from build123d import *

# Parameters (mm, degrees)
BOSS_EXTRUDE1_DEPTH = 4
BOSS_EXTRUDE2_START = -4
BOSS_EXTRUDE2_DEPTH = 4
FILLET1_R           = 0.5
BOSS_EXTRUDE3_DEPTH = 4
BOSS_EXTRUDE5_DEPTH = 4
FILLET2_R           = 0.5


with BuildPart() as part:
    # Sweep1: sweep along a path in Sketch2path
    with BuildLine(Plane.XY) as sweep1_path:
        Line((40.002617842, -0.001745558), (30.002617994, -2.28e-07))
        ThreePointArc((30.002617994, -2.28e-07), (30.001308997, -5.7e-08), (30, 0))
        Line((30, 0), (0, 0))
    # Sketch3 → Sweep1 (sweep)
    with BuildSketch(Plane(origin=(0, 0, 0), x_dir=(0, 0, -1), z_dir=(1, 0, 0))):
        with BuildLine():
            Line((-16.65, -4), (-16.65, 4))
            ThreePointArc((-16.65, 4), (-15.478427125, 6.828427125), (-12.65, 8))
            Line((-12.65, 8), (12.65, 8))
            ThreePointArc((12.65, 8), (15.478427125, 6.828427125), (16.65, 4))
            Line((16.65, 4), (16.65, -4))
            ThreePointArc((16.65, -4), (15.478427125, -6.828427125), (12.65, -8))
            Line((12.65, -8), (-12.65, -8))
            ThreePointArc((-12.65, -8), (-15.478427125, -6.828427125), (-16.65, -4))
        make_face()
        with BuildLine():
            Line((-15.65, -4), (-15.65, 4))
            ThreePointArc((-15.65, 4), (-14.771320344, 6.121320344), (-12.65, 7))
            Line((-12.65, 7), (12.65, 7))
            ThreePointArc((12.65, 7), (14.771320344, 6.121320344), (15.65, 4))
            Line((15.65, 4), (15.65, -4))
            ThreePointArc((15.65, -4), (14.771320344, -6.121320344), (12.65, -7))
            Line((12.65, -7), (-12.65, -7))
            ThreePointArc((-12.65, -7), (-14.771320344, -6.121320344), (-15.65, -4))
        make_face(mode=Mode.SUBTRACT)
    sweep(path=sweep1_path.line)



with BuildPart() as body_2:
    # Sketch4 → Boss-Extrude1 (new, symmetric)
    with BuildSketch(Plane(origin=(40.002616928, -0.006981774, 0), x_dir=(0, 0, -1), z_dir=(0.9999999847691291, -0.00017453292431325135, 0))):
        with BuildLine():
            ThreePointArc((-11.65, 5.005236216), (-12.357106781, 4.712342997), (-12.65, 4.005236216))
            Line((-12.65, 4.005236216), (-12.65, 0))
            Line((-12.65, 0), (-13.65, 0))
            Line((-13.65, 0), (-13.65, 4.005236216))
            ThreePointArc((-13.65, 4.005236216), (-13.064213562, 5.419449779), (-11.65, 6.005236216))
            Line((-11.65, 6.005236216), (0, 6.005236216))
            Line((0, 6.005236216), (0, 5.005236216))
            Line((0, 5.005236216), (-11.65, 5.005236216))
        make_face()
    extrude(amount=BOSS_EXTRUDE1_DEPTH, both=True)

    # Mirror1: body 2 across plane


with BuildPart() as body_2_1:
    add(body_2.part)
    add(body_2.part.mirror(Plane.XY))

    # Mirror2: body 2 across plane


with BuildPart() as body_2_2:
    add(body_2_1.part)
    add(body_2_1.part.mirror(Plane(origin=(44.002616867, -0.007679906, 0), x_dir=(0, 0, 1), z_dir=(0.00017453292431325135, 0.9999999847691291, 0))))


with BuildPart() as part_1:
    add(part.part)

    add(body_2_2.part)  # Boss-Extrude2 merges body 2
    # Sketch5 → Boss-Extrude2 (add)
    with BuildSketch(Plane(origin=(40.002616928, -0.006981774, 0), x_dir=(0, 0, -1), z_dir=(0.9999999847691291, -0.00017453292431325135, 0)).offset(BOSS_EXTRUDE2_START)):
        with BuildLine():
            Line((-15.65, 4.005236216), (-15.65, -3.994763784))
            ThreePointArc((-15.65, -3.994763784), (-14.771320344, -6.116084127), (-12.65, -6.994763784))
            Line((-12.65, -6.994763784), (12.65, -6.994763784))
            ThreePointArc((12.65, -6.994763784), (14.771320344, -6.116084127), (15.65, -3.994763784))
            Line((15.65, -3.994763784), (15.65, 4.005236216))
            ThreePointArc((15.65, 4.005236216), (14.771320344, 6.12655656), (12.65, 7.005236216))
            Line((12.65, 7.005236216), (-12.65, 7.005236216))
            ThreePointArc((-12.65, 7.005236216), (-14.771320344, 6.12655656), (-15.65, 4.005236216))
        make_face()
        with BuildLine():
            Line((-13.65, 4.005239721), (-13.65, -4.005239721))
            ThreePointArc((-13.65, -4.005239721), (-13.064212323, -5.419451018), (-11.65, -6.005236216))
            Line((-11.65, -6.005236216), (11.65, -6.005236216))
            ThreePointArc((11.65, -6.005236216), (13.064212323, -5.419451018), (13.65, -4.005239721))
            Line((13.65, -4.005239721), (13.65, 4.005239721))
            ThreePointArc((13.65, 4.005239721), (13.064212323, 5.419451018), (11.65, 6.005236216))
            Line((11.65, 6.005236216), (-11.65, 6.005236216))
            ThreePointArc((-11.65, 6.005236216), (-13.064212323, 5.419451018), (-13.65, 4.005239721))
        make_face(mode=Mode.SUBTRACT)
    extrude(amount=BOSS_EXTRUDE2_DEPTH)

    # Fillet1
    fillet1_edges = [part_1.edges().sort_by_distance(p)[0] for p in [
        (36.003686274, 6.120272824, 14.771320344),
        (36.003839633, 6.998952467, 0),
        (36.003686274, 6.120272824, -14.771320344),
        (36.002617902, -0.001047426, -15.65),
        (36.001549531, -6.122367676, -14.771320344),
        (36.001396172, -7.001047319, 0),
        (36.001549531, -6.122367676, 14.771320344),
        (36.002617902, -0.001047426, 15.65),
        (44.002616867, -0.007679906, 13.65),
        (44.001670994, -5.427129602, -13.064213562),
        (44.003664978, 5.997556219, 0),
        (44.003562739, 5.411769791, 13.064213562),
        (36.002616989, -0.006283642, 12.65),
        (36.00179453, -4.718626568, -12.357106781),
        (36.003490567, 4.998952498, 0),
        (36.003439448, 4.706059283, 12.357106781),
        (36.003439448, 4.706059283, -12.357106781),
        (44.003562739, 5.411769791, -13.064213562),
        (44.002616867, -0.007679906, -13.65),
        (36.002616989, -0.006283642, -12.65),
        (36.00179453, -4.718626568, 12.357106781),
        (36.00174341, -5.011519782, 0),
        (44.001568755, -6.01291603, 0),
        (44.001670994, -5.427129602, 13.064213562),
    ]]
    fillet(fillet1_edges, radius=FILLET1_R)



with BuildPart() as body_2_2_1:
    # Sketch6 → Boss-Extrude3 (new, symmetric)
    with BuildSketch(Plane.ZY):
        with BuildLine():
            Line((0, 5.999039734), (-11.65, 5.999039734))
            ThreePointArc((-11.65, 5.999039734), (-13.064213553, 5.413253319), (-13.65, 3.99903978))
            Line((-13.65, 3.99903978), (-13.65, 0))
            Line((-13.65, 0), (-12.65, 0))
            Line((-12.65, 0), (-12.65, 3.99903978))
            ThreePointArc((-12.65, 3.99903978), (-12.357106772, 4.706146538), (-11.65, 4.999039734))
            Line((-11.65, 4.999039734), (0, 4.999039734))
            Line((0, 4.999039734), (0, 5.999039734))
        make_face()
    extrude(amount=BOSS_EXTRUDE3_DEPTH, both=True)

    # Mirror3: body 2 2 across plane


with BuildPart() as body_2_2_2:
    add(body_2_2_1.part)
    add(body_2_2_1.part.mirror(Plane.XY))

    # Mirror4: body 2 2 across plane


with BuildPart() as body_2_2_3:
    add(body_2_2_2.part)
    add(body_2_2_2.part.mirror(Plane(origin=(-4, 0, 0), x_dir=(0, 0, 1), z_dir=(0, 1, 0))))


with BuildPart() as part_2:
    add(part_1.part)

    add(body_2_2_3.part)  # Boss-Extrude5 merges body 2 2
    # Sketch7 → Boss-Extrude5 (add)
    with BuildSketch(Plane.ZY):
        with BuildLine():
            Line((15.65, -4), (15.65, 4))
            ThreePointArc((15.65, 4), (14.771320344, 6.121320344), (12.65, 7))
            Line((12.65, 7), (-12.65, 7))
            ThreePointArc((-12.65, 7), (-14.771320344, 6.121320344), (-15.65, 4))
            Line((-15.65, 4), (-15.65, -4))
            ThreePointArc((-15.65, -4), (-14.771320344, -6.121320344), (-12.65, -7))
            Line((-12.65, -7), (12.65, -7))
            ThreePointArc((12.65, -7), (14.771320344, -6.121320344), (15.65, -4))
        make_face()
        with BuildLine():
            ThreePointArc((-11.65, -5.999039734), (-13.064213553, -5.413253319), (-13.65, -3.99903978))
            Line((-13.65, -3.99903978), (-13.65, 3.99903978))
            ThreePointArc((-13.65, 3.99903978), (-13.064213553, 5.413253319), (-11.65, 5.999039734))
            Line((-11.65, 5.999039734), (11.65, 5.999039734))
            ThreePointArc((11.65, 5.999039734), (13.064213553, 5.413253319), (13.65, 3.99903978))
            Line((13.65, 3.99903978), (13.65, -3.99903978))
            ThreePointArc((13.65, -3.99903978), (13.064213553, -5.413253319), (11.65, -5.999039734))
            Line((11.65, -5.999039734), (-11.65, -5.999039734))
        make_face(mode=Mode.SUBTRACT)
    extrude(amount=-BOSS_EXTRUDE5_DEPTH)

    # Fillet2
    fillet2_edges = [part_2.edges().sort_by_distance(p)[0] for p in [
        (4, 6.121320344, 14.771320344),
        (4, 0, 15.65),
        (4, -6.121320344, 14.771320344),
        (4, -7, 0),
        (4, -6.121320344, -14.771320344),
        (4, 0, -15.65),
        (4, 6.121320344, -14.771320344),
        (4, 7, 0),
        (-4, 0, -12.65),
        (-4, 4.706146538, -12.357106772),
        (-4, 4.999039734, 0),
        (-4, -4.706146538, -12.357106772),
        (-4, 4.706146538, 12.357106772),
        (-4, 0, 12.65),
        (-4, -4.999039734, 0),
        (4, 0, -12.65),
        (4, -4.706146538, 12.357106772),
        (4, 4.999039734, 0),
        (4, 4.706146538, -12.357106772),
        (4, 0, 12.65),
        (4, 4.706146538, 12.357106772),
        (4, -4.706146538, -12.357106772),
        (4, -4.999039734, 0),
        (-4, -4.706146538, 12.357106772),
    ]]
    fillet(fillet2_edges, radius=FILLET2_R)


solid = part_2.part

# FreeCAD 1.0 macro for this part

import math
import FreeCAD as App
import Part
import Sketcher

V = App.Vector
Q = App.Units.Quantity


def edges_at(feature, points):
    """Names of the edges that pass closest to the given points."""
    edges = feature.Shape.Edges
    near = lambda p: min(range(len(edges)), key=lambda i: edges[i].distToShape(Part.Vertex(*p))[0])
    return sorted({f"Edge{near(p) + 1}" for p in points})

doc = App.newDocument("Part")
body = doc.addObject("PartDesign::Body", "Body")

# Sketch on YZ plane
sketch1 = body.newObject("Sketcher::SketchObject", "Sketch")
sketch1.AttachmentSupport = (doc.getObject("YZ_Plane"), [""])
sketch1.MapMode = "FlatFace"
sketch1.addGeometry(Part.LineSegment(V(4, 16.6, 0), V(-4, 16.6, 0)), False)
sketch1.addGeometry(Part.ArcOfCircle(Part.Circle(V(-4, 12.7, 0), V(0, 0, 1), 4), math.radians(90), math.radians(180)), False)
sketch1.addGeometry(Part.LineSegment(V(-8, 12.7, 0), V(-8, -12.7, 0)), False)
sketch1.addGeometry(Part.ArcOfCircle(Part.Circle(V(-4, -12.7, 0), V(0, 0, 1), 4), math.radians(180), math.radians(270)), False)
sketch1.addGeometry(Part.LineSegment(V(-4, -16.6, 0), V(4, -16.6, 0)), False)
sketch1.addGeometry(Part.ArcOfCircle(Part.Circle(V(4, -12.7, 0), V(0, 0, 1), 4), math.radians(-90), math.radians(0)), False)
sketch1.addGeometry(Part.LineSegment(V(8, -12.7, 0), V(8, 12.7, 0)), False)
sketch1.addGeometry(Part.ArcOfCircle(Part.Circle(V(4, 12.7, 0), V(0, 0, 1), 4), math.radians(0), math.radians(90)), False)
sketch1.addGeometry(Part.LineSegment(V(-4, 15.7, 0), V(4, 15.7, 0)), False)
sketch1.addGeometry(Part.ArcOfCircle(Part.Circle(V(4, 12.7, 0), V(0, 0, 1), 3), math.radians(0), math.radians(90)), False)
sketch1.addGeometry(Part.LineSegment(V(7, 12.7, 0), V(7, -12.7, 0)), False)
sketch1.addGeometry(Part.ArcOfCircle(Part.Circle(V(4, -12.7, 0), V(0, 0, 1), 3), math.radians(-90), math.radians(0)), False)
sketch1.addGeometry(Part.LineSegment(V(4, -15.7, 0), V(-4, -15.7, 0)), False)
sketch1.addGeometry(Part.ArcOfCircle(Part.Circle(V(-4, -12.7, 0), V(0, 0, 1), 3), math.radians(180), math.radians(270)), False)
sketch1.addGeometry(Part.LineSegment(V(-7, -12.7, 0), V(-7, 12.7, 0)), False)
sketch1.addGeometry(Part.ArcOfCircle(Part.Circle(V(-4, 12.7, 0), V(0, 0, 1), 3), math.radians(90), math.radians(180)), False)
sketch1.addConstraint(Sketcher.Constraint("Tangent", 0, 2, 1, 1))
sketch1.addConstraint(Sketcher.Constraint("Tangent", 1, 2, 2, 1))
sketch1.addConstraint(Sketcher.Constraint("Tangent", 2, 2, 3, 1))
sketch1.addConstraint(Sketcher.Constraint("Tangent", 3, 2, 4, 1))
sketch1.addConstraint(Sketcher.Constraint("Tangent", 4, 2, 5, 1))
sketch1.addConstraint(Sketcher.Constraint("Tangent", 5, 2, 6, 1))
sketch1.addConstraint(Sketcher.Constraint("Tangent", 6, 2, 7, 1))
sketch1.addConstraint(Sketcher.Constraint("Tangent", 7, 2, 0, 1))
sketch1.addConstraint(Sketcher.Constraint("Tangent", 8, 2, 9, 2))
sketch1.addConstraint(Sketcher.Constraint("Tangent", 9, 1, 10, 1))
sketch1.addConstraint(Sketcher.Constraint("Tangent", 10, 2, 11, 2))
sketch1.addConstraint(Sketcher.Constraint("Tangent", 11, 1, 12, 1))
sketch1.addConstraint(Sketcher.Constraint("Tangent", 12, 2, 13, 2))
sketch1.addConstraint(Sketcher.Constraint("Tangent", 13, 1, 14, 1))
sketch1.addConstraint(Sketcher.Constraint("Tangent", 14, 2, 15, 2))
sketch1.addConstraint(Sketcher.Constraint("Tangent", 15, 1, 8, 1))
sketch1.addConstraint(Sketcher.Constraint("Horizontal", 0))
sketch1.addConstraint(Sketcher.Constraint("Vertical", 2))
sketch1.addConstraint(Sketcher.Constraint("Horizontal", 4))
sketch1.addConstraint(Sketcher.Constraint("Vertical", 6))
sketch1.addConstraint(Sketcher.Constraint("Horizontal", 8))
sketch1.addConstraint(Sketcher.Constraint("Vertical", 10))
sketch1.addConstraint(Sketcher.Constraint("Horizontal", 12))
sketch1.addConstraint(Sketcher.Constraint("Vertical", 14))
sketch1.addConstraint(Sketcher.Constraint("Coincident", 9, 3, 7, 3))
sketch1.addConstraint(Sketcher.Constraint("Coincident", 11, 3, 5, 3))
sketch1.addConstraint(Sketcher.Constraint("Coincident", 13, 3, 3, 3))
sketch1.addConstraint(Sketcher.Constraint("Equal", 1, 3))
sketch1.addConstraint(Sketcher.Constraint("Equal", 3, 5))
sketch1.addConstraint(Sketcher.Constraint("Equal", 5, 7))
sketch1.addConstraint(Sketcher.Constraint("Equal", 13, 15))
sketch1.addConstraint(Sketcher.Constraint("Symmetric", 1, 3, 5, 3, -1, 1))
sketch1.addConstraint(Sketcher.Constraint("Radius", 1, Q("4 mm")))
sketch1.addConstraint(Sketcher.Constraint("Radius", 9, Q("3 mm")))
sketch1.addConstraint(Sketcher.Constraint("DistanceX", 0, 2, 0, 1, Q("8 mm")))
sketch1.addConstraint(Sketcher.Constraint("DistanceY", 2, 2, 2, 1, Q("25.3 mm")))

# Sketch on XY plane
sketch2 = body.newObject("Sketcher::SketchObject", "Sketch001")
sketch2.AttachmentSupport = (doc.getObject("XY_Plane"), [""])
sketch2.MapMode = "FlatFace"
sketch2.addGeometry(Part.LineSegment(V(40.0026, -0.0017, 0), V(30.0026, 0, 0)), False)
sketch2.addGeometry(Part.ArcOfCircle(Part.Circle(V(30, -15.0305, 0), V(0, 0, 1), 15.0305), math.radians(89.99), math.radians(90)), False)
sketch2.addGeometry(Part.LineSegment(V(30, 0, 0), V(0, 0, 0)), False)
sketch2.addConstraint(Sketcher.Constraint("Tangent", 0, 2, 1, 1))
sketch2.addConstraint(Sketcher.Constraint("Tangent", 1, 2, 2, 1))
sketch2.addConstraint(Sketcher.Constraint("Horizontal", 2))
sketch2.addConstraint(Sketcher.Constraint("Coincident", 2, 2, -1, 1))
sketch2.addConstraint(Sketcher.Constraint("DistanceX", 2, 2, 2, 1, Q("30 mm")))
sketch2.addConstraint(Sketcher.Constraint("Distance", 0, Q("10 mm")))
sketch2.addConstraint(Sketcher.Constraint("Angle", 0, Q("179.99 deg")))
sketch2.addConstraint(Sketcher.Constraint("Radius", 1, Q("15.030466 mm")))
doc.recompute()

additivepipe = body.newObject("PartDesign::AdditivePipe", "AdditivePipe")
additivepipe.Profile = sketch1
additivepipe.Spine = (sketch2, ["Edge1", "Edge2", "Edge3"])
body2 = doc.addObject("PartDesign::Body", "Body001")

# Sketch on an angled plane
sketch3 = body2.newObject("Sketcher::SketchObject", "Sketch002")
sketch3.Placement = App.Placement(V(40.002617, -0.006982, 0), App.Rotation(V(0, 0, -1), V(0.000174533, 0.999999985, 0), V(0.999999985, -0.000174533, 0), "ZXY"))
sketch3.addGeometry(Part.ArcOfCircle(Part.Circle(V(-11.6, 4, 0), V(0, 0, 1), 1), math.radians(90), math.radians(180)), False)
sketch3.addGeometry(Part.LineSegment(V(-11.7, 5, 0), V(0, 5, 0)), False)
sketch3.addGeometry(Part.LineSegment(V(0, 5, 0), V(0, 6, 0)), False)
sketch3.addGeometry(Part.LineSegment(V(0, 6, 0), V(-11.7, 6, 0)), False)
sketch3.addGeometry(Part.ArcOfCircle(Part.Circle(V(-11.7, 4, 0), V(0, 0, 1), 2), math.radians(90), math.radians(180)), False)
sketch3.addGeometry(Part.LineSegment(V(-13.7, 4, 0), V(-13.7, 0, 0)), False)
sketch3.addGeometry(Part.LineSegment(V(-13.7, 0, 0), V(-12.7, 0, 0)), False)
sketch3.addGeometry(Part.LineSegment(V(-12.7, 0, 0), V(-12.7, 4, 0)), False)
sketch3.addConstraint(Sketcher.Constraint("Tangent", 0, 1, 1, 1))
sketch3.addConstraint(Sketcher.Constraint("Coincident", 1, 2, 2, 1))
sketch3.addConstraint(Sketcher.Constraint("Coincident", 2, 2, 3, 1))
sketch3.addConstraint(Sketcher.Constraint("Tangent", 3, 2, 4, 1))
sketch3.addConstraint(Sketcher.Constraint("Tangent", 4, 2, 5, 1))
sketch3.addConstraint(Sketcher.Constraint("Coincident", 5, 2, 6, 1))
sketch3.addConstraint(Sketcher.Constraint("Coincident", 6, 2, 7, 1))
sketch3.addConstraint(Sketcher.Constraint("Tangent", 7, 2, 0, 2))
sketch3.addConstraint(Sketcher.Constraint("Horizontal", 1))
sketch3.addConstraint(Sketcher.Constraint("Vertical", 2))
sketch3.addConstraint(Sketcher.Constraint("Horizontal", 3))
sketch3.addConstraint(Sketcher.Constraint("Vertical", 5))
sketch3.addConstraint(Sketcher.Constraint("Horizontal", 6))
sketch3.addConstraint(Sketcher.Constraint("Vertical", 7))
sketch3.addConstraint(Sketcher.Constraint("Coincident", 4, 3, 0, 3))
sketch3.addConstraint(Sketcher.Constraint("PointOnObject", 1, 2, -2))
sketch3.addConstraint(Sketcher.Constraint("PointOnObject", 5, 2, -1))
sketch3.addConstraint(Sketcher.Constraint("Radius", 0, Q("1 mm")))
sketch3.addConstraint(Sketcher.Constraint("Radius", 4, Q("2 mm")))
sketch3.addConstraint(Sketcher.Constraint("DistanceX", 1, 1, 1, 2, Q("11.65 mm")))
sketch3.addConstraint(Sketcher.Constraint("DistanceY", 5, 2, 5, 1, Q("4.005236 mm")))
pad1 = body2.newObject("PartDesign::Pad", "Pad")
pad1.Profile = sketch3
pad1.Length = 8
pad1.Midplane = True
body3 = doc.addObject("PartDesign::Body", "Body002")
doc.recompute()

body3.BaseFeature = body2
doc.recompute()

mirroring = doc.addObject("Part::Mirroring", "Mirroring")
mirroring.Source = body2
mirroring.Base = V(0, 0, 0)
mirroring.Normal = V(0, 0, 1)
body4 = doc.addObject("PartDesign::Body", "Body003")
body4.BaseFeature = mirroring
boolean = body3.newObject("PartDesign::Boolean", "Boolean")
boolean.Type = "Fuse"
boolean.addObjects([body4])
doc.recompute()
body5 = doc.addObject("PartDesign::Body", "Body004")
doc.recompute()

body5.BaseFeature = body3
doc.recompute()

mirroring2 = doc.addObject("Part::Mirroring", "Mirroring001")
mirroring2.Source = body3
mirroring2.Base = V(44.002617, -0.00768, 0)
mirroring2.Normal = V(0.000174533, 0.999999985, 0)
body6 = doc.addObject("PartDesign::Body", "Body005")
body6.BaseFeature = mirroring2
boolean2 = body5.newObject("PartDesign::Boolean", "Boolean001")
boolean2.Type = "Fuse"
boolean2.addObjects([body6])
doc.recompute()
body.AllowCompound = True
doc.recompute()

boolean3 = body.newObject("PartDesign::Boolean", "Boolean002")
boolean3.Type = "Fuse"
boolean3.addObjects([body5])

# Sketch on an angled plane
sketch4 = body.newObject("Sketcher::SketchObject", "Sketch003")
sketch4.Placement = App.Placement(V(36.002617, -0.006284, 0), App.Rotation(V(0, 0, -1), V(0.000174533, 0.999999985, 0), V(0.999999985, -0.000174533, 0), "ZXY"))
sketch4.addGeometry(Part.LineSegment(V(-15.7, 4, 0), V(-15.7, -4, 0)), False)
sketch4.addGeometry(Part.ArcOfCircle(Part.Circle(V(-12.7, -4, 0), V(0, 0, 1), 3), math.radians(180), math.radians(270)), False)
sketch4.addGeometry(Part.LineSegment(V(-12.7, -7, 0), V(12.7, -7, 0)), False)
sketch4.addGeometry(Part.ArcOfCircle(Part.Circle(V(12.7, -4, 0), V(0, 0, 1), 3), math.radians(-90), math.radians(0)), False)
sketch4.addGeometry(Part.LineSegment(V(15.7, -4, 0), V(15.7, 4, 0)), False)
sketch4.addGeometry(Part.ArcOfCircle(Part.Circle(V(12.7, 4, 0), V(0, 0, 1), 3), math.radians(0), math.radians(90)), False)
sketch4.addGeometry(Part.LineSegment(V(12.7, 7, 0), V(-12.7, 7, 0)), False)
sketch4.addGeometry(Part.ArcOfCircle(Part.Circle(V(-12.7, 4, 0), V(0, 0, 1), 3), math.radians(90), math.radians(180)), False)
sketch4.addGeometry(Part.LineSegment(V(-13.7, -4, 0), V(-13.7, 4, 0)), False)
sketch4.addGeometry(Part.ArcOfCircle(Part.Circle(V(-11.7, 4, 0), V(0, 0, 1), 2), math.radians(90), math.radians(180)), False)
sketch4.addGeometry(Part.LineSegment(V(-11.7, 6, 0), V(11.7, 6, 0)), False)
sketch4.addGeometry(Part.ArcOfCircle(Part.Circle(V(11.7, 4, 0), V(0, 0, 1), 2), math.radians(0), math.radians(90)), False)
sketch4.addGeometry(Part.LineSegment(V(13.7, 4, 0), V(13.7, -4, 0)), False)
sketch4.addGeometry(Part.ArcOfCircle(Part.Circle(V(11.7, -4, 0), V(0, 0, 1), 2), math.radians(-90), math.radians(0)), False)
sketch4.addGeometry(Part.LineSegment(V(11.7, -6, 0), V(-11.7, -6, 0)), False)
sketch4.addGeometry(Part.ArcOfCircle(Part.Circle(V(-11.7, -4, 0), V(0, 0, 1), 2), math.radians(-180), math.radians(-90)), False)
sketch4.addConstraint(Sketcher.Constraint("Tangent", 0, 2, 1, 1))
sketch4.addConstraint(Sketcher.Constraint("Tangent", 1, 2, 2, 1))
sketch4.addConstraint(Sketcher.Constraint("Tangent", 2, 2, 3, 1))
sketch4.addConstraint(Sketcher.Constraint("Tangent", 3, 2, 4, 1))
sketch4.addConstraint(Sketcher.Constraint("Tangent", 4, 2, 5, 1))
sketch4.addConstraint(Sketcher.Constraint("Tangent", 5, 2, 6, 1))
sketch4.addConstraint(Sketcher.Constraint("Tangent", 6, 2, 7, 1))
sketch4.addConstraint(Sketcher.Constraint("Tangent", 7, 2, 0, 1))
sketch4.addConstraint(Sketcher.Constraint("Tangent", 8, 2, 9, 2))
sketch4.addConstraint(Sketcher.Constraint("Tangent", 9, 1, 10, 1))
sketch4.addConstraint(Sketcher.Constraint("Tangent", 10, 2, 11, 2))
sketch4.addConstraint(Sketcher.Constraint("Tangent", 11, 1, 12, 1))
sketch4.addConstraint(Sketcher.Constraint("Tangent", 12, 2, 13, 2))
sketch4.addConstraint(Sketcher.Constraint("Tangent", 13, 1, 14, 1))
sketch4.addConstraint(Sketcher.Constraint("Tangent", 14, 2, 15, 2))
sketch4.addConstraint(Sketcher.Constraint("Tangent", 15, 1, 8, 1))
sketch4.addConstraint(Sketcher.Constraint("Vertical", 0))
sketch4.addConstraint(Sketcher.Constraint("Horizontal", 2))
sketch4.addConstraint(Sketcher.Constraint("Vertical", 4))
sketch4.addConstraint(Sketcher.Constraint("Horizontal", 6))
sketch4.addConstraint(Sketcher.Constraint("Vertical", 8))
sketch4.addConstraint(Sketcher.Constraint("Horizontal", 10))
sketch4.addConstraint(Sketcher.Constraint("Vertical", 12))
sketch4.addConstraint(Sketcher.Constraint("Horizontal", 14))
sketch4.addConstraint(Sketcher.Constraint("Equal", 1, 3))
sketch4.addConstraint(Sketcher.Constraint("Equal", 3, 5))
sketch4.addConstraint(Sketcher.Constraint("Equal", 5, 7))
sketch4.addConstraint(Sketcher.Constraint("Equal", 9, 11))
sketch4.addConstraint(Sketcher.Constraint("Equal", 11, 13))
sketch4.addConstraint(Sketcher.Constraint("Equal", 13, 15))
sketch4.addConstraint(Sketcher.Constraint("Symmetric", 9, 3, 13, 3, -1, 1))
sketch4.addConstraint(Sketcher.Constraint("Horizontal", 7, 3, 9, 3))
sketch4.addConstraint(Sketcher.Constraint("Radius", 1, Q("3 mm")))
sketch4.addConstraint(Sketcher.Constraint("Radius", 9, Q("2 mm")))
sketch4.addConstraint(Sketcher.Constraint("DistanceY", 0, 2, 0, 1, Q("8 mm")))
sketch4.addConstraint(Sketcher.Constraint("DistanceX", 2, 1, 2, 2, Q("25.3 mm")))
sketch4.addConstraint(Sketcher.Constraint("DistanceX", 10, 1, 10, 2, Q("23.3 mm")))
sketch4.addConstraint(Sketcher.Constraint("DistanceX", 7, 3, 9, 3, Q("1 mm")))
sketch4.addConstraint(Sketcher.Constraint("DistanceY", 8, 1, 8, 2, Q("8.010479 mm")))
pad2 = body.newObject("PartDesign::Pad", "Pad001")
pad2.Profile = sketch4
pad2.Length = 4
doc.recompute()

fillet = body.newObject("PartDesign::Fillet", "Fillet")
fillet.Base = (pad2, edges_at(pad2, [
    (36.004, 6.12, 14.771),
    (36.004, 6.999, 0),
    (36.004, 6.12, -14.771),
    (36.003, -0.001, -15.65),
    (36.002, -6.122, -14.771),
    (36.001, -7.001, 0),
    (36.002, -6.122, 14.771),
    (36.003, -0.001, 15.65),
    (44.003, -0.008, 13.65),
    (44.002, -5.427, -13.064),
    (44.004, 5.998, 0),
    (44.004, 5.412, 13.064),
    (36.003, -0.006, 12.65),
    (36.002, -4.719, -12.357),
    (36.003, 4.999, 0),
    (36.003, 4.706, 12.357),
    (36.003, 4.706, -12.357),
    (44.004, 5.412, -13.064),
    (44.003, -0.008, -13.65),
    (36.003, -0.006, -12.65),
    (36.002, -4.719, 12.357),
    (36.002, -5.012, 0),
    (44.002, -6.013, 0),
    (44.002, -5.427, 13.064),
]))
fillet.Radius = 0.5
body7 = doc.addObject("PartDesign::Body", "Body006")

# Sketch on YZ plane
sketch5 = body7.newObject("Sketcher::SketchObject", "Sketch004")
sketch5.AttachmentSupport = (doc.getObject("YZ_Plane006"), [""])
sketch5.MapMode = "FlatFace"
sketch5.addGeometry(Part.LineSegment(V(6, 0, 0), V(6, -11.7, 0)), False)
sketch5.addGeometry(Part.ArcOfCircle(Part.Circle(V(4, -11.7, 0), V(0, 0, 1), 2), math.radians(-90), math.radians(0)), False)
sketch5.addGeometry(Part.LineSegment(V(4, -13.7, 0), V(0, -13.7, 0)), False)
sketch5.addGeometry(Part.LineSegment(V(0, -13.7, 0), V(0, -12.7, 0)), False)
sketch5.addGeometry(Part.LineSegment(V(0, -12.7, 0), V(4, -12.7, 0)), False)
sketch5.addGeometry(Part.ArcOfCircle(Part.Circle(V(4, -11.7, 0), V(0, 0, 1), 1), math.radians(-90), math.radians(0)), False)
sketch5.addGeometry(Part.LineSegment(V(5, -11.7, 0), V(5, 0, 0)), False)
sketch5.addGeometry(Part.LineSegment(V(5, 0, 0), V(6, 0, 0)), False)
sketch5.addConstraint(Sketcher.Constraint("Tangent", 0, 2, 1, 2))
sketch5.addConstraint(Sketcher.Constraint("Tangent", 1, 1, 2, 1))
sketch5.addConstraint(Sketcher.Constraint("Coincident", 2, 2, 3, 1))
sketch5.addConstraint(Sketcher.Constraint("Coincident", 3, 2, 4, 1))
sketch5.addConstraint(Sketcher.Constraint("Tangent", 4, 2, 5, 1))
sketch5.addConstraint(Sketcher.Constraint("Tangent", 5, 2, 6, 1))
sketch5.addConstraint(Sketcher.Constraint("Coincident", 6, 2, 7, 1))
sketch5.addConstraint(Sketcher.Constraint("Coincident", 7, 2, 0, 1))
sketch5.addConstraint(Sketcher.Constraint("Vertical", 0))
sketch5.addConstraint(Sketcher.Constraint("Horizontal", 2))
sketch5.addConstraint(Sketcher.Constraint("Vertical", 3))
sketch5.addConstraint(Sketcher.Constraint("Horizontal", 4))
sketch5.addConstraint(Sketcher.Constraint("Vertical", 6))
sketch5.addConstraint(Sketcher.Constraint("Horizontal", 7))
sketch5.addConstraint(Sketcher.Constraint("Coincident", 5, 3, 1, 3))
sketch5.addConstraint(Sketcher.Constraint("PointOnObject", 2, 2, -2))
sketch5.addConstraint(Sketcher.Constraint("PointOnObject", 6, 2, -1))
sketch5.addConstraint(Sketcher.Constraint("Radius", 1, Q("2 mm")))
sketch5.addConstraint(Sketcher.Constraint("Radius", 5, Q("1 mm")))
sketch5.addConstraint(Sketcher.Constraint("DistanceY", 0, 2, 0, 1, Q("11.65 mm")))
sketch5.addConstraint(Sketcher.Constraint("DistanceX", 2, 2, 2, 1, Q("3.99904 mm")))
pad3 = body7.newObject("PartDesign::Pad", "Pad002")
pad3.Profile = sketch5
pad3.Length = 8
pad3.Midplane = True
body8 = doc.addObject("PartDesign::Body", "Body007")
doc.recompute()

body8.BaseFeature = body7
doc.recompute()

mirroring3 = doc.addObject("Part::Mirroring", "Mirroring002")
mirroring3.Source = body7
mirroring3.Base = V(0, 0, 0)
mirroring3.Normal = V(0, 0, 1)
body9 = doc.addObject("PartDesign::Body", "Body008")
body9.BaseFeature = mirroring3
boolean4 = body8.newObject("PartDesign::Boolean", "Boolean003")
boolean4.Type = "Fuse"
boolean4.addObjects([body9])
doc.recompute()
body10 = doc.addObject("PartDesign::Body", "Body009")
doc.recompute()

body10.BaseFeature = body8
doc.recompute()

mirroring4 = doc.addObject("Part::Mirroring", "Mirroring003")
mirroring4.Source = body8
mirroring4.Base = V(-4, 0, 0)
mirroring4.Normal = V(0, 1, 0)
body11 = doc.addObject("PartDesign::Body", "Body010")
body11.BaseFeature = mirroring4
boolean5 = body10.newObject("PartDesign::Boolean", "Boolean004")
boolean5.Type = "Fuse"
boolean5.addObjects([body11])
doc.recompute()
body.AllowCompound = True
doc.recompute()

boolean6 = body.newObject("PartDesign::Boolean", "Boolean005")
boolean6.Type = "Fuse"
boolean6.addObjects([body10])

# Sketch on YZ plane
sketch6 = body.newObject("Sketcher::SketchObject", "Sketch005")
sketch6.AttachmentSupport = (doc.getObject("YZ_Plane"), [""])
sketch6.MapMode = "FlatFace"
sketch6.addGeometry(Part.LineSegment(V(-4, 15.7, 0), V(4, 15.7, 0)), False)
sketch6.addGeometry(Part.ArcOfCircle(Part.Circle(V(4, 12.7, 0), V(0, 0, 1), 3), math.radians(0), math.radians(90)), False)
sketch6.addGeometry(Part.LineSegment(V(7, 12.7, 0), V(7, -12.7, 0)), False)
sketch6.addGeometry(Part.ArcOfCircle(Part.Circle(V(4, -12.7, 0), V(0, 0, 1), 3), math.radians(-90), math.radians(0)), False)
sketch6.addGeometry(Part.LineSegment(V(4, -15.7, 0), V(-4, -15.7, 0)), False)
sketch6.addGeometry(Part.ArcOfCircle(Part.Circle(V(-4, -12.7, 0), V(0, 0, 1), 3), math.radians(180), math.radians(270)), False)
sketch6.addGeometry(Part.LineSegment(V(-7, -12.7, 0), V(-7, 12.7, 0)), False)
sketch6.addGeometry(Part.ArcOfCircle(Part.Circle(V(-4, 12.7, 0), V(0, 0, 1), 3), math.radians(90), math.radians(180)), False)
sketch6.addGeometry(Part.LineSegment(V(-6, 11.7, 0), V(-6, -11.7, 0)), False)
sketch6.addGeometry(Part.ArcOfCircle(Part.Circle(V(-4, -11.7, 0), V(0, 0, 1), 2), math.radians(180), math.radians(270)), False)
sketch6.addGeometry(Part.LineSegment(V(-4, -13.7, 0), V(4, -13.7, 0)), False)
sketch6.addGeometry(Part.ArcOfCircle(Part.Circle(V(4, -11.7, 0), V(0, 0, 1), 2), math.radians(-90), math.radians(0)), False)
sketch6.addGeometry(Part.LineSegment(V(6, -11.7, 0), V(6, 11.7, 0)), False)
sketch6.addGeometry(Part.ArcOfCircle(Part.Circle(V(4, 11.7, 0), V(0, 0, 1), 2), math.radians(0), math.radians(90)), False)
sketch6.addGeometry(Part.LineSegment(V(4, 13.7, 0), V(-4, 13.7, 0)), False)
sketch6.addGeometry(Part.ArcOfCircle(Part.Circle(V(-4, 11.7, 0), V(0, 0, 1), 2), math.radians(90), math.radians(180)), False)
sketch6.addConstraint(Sketcher.Constraint("Tangent", 0, 2, 1, 2))
sketch6.addConstraint(Sketcher.Constraint("Tangent", 1, 1, 2, 1))
sketch6.addConstraint(Sketcher.Constraint("Tangent", 2, 2, 3, 2))
sketch6.addConstraint(Sketcher.Constraint("Tangent", 3, 1, 4, 1))
sketch6.addConstraint(Sketcher.Constraint("Tangent", 4, 2, 5, 2))
sketch6.addConstraint(Sketcher.Constraint("Tangent", 5, 1, 6, 1))
sketch6.addConstraint(Sketcher.Constraint("Tangent", 6, 2, 7, 2))
sketch6.addConstraint(Sketcher.Constraint("Tangent", 7, 1, 0, 1))
sketch6.addConstraint(Sketcher.Constraint("Tangent", 8, 2, 9, 1))
sketch6.addConstraint(Sketcher.Constraint("Tangent", 9, 2, 10, 1))
sketch6.addConstraint(Sketcher.Constraint("Tangent", 10, 2, 11, 1))
sketch6.addConstraint(Sketcher.Constraint("Tangent", 11, 2, 12, 1))
sketch6.addConstraint(Sketcher.Constraint("Tangent", 12, 2, 13, 1))
sketch6.addConstraint(Sketcher.Constraint("Tangent", 13, 2, 14, 1))
sketch6.addConstraint(Sketcher.Constraint("Tangent", 14, 2, 15, 1))
sketch6.addConstraint(Sketcher.Constraint("Tangent", 15, 2, 8, 1))
sketch6.addConstraint(Sketcher.Constraint("Horizontal", 0))
sketch6.addConstraint(Sketcher.Constraint("Vertical", 2))
sketch6.addConstraint(Sketcher.Constraint("Horizontal", 4))
sketch6.addConstraint(Sketcher.Constraint("Vertical", 6))
sketch6.addConstraint(Sketcher.Constraint("Vertical", 8))
sketch6.addConstraint(Sketcher.Constraint("Horizontal", 10))
sketch6.addConstraint(Sketcher.Constraint("Vertical", 12))
sketch6.addConstraint(Sketcher.Constraint("Horizontal", 14))
sketch6.addConstraint(Sketcher.Constraint("Equal", 1, 3))
sketch6.addConstraint(Sketcher.Constraint("Equal", 3, 5))
sketch6.addConstraint(Sketcher.Constraint("Equal", 5, 7))
sketch6.addConstraint(Sketcher.Constraint("Equal", 9, 11))
sketch6.addConstraint(Sketcher.Constraint("Equal", 11, 13))
sketch6.addConstraint(Sketcher.Constraint("Equal", 13, 15))
sketch6.addConstraint(Sketcher.Constraint("Symmetric", 1, 3, 5, 3, -1, 1))
sketch6.addConstraint(Sketcher.Constraint("Symmetric", 9, 3, 13, 3, -1, 1))
sketch6.addConstraint(Sketcher.Constraint("Radius", 1, Q("3 mm")))
sketch6.addConstraint(Sketcher.Constraint("Radius", 9, Q("2 mm")))
sketch6.addConstraint(Sketcher.Constraint("DistanceX", 0, 1, 0, 2, Q("8 mm")))
sketch6.addConstraint(Sketcher.Constraint("DistanceY", 2, 2, 2, 1, Q("25.3 mm")))
sketch6.addConstraint(Sketcher.Constraint("DistanceY", 8, 2, 8, 1, Q("23.3 mm")))
sketch6.addConstraint(Sketcher.Constraint("DistanceX", 10, 1, 10, 2, Q("7.99808 mm")))
pad4 = body.newObject("PartDesign::Pad", "Pad003")
pad4.Profile = sketch6
pad4.Length = 4
doc.recompute()

fillet2 = body.newObject("PartDesign::Fillet", "Fillet001")
fillet2.Base = (pad4, edges_at(pad4, [
    (4, 6.121, 14.771),
    (4, 0, 15.65),
    (4, -6.121, 14.771),
    (4, -7, 0),
    (4, -6.121, -14.771),
    (4, 0, -15.65),
    (4, 6.121, -14.771),
    (4, 7, 0),
    (-4, 0, -12.65),
    (-4, 4.706, -12.357),
    (-4, 4.999, 0),
    (-4, -4.706, -12.357),
    (-4, 4.706, 12.357),
    (-4, 0, 12.65),
    (-4, -4.999, 0),
    (4, 0, -12.65),
    (4, -4.706, 12.357),
    (4, 4.999, 0),
    (4, 4.706, -12.357),
    (4, 0, 12.65),
    (4, 4.706, 12.357),
    (4, -4.706, -12.357),
    (4, -4.999, 0),
    (-4, -4.706, 12.357),
]))
fillet2.Radius = 0.5
mirroring.Visibility = False
mirroring2.Visibility = False
mirroring3.Visibility = False
mirroring4.Visibility = False

doc.recompute()
